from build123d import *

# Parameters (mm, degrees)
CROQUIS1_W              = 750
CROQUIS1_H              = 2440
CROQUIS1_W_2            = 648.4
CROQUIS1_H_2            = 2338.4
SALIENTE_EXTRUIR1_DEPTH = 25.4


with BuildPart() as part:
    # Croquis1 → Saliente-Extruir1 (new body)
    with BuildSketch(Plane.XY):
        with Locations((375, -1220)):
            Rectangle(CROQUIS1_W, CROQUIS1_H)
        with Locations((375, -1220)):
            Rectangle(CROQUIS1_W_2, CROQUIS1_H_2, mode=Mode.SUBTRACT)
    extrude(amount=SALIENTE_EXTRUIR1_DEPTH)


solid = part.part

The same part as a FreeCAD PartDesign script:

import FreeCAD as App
import Part
import Sketcher
from FreeCAD import Vector

doc = App.newDocument("Part")
body = doc.addObject("PartDesign::Body", "Body")

sketch1 = body.newObject("Sketcher::SketchObject", "Sketch")
sketch1.AttachmentSupport = (doc.getObject("XY_Plane"), [""])
sketch1.MapMode = "FlatFace"
sketch1.addGeometry([
    Part.LineSegment(Vector(0, 0, 0), Vector(0, -2440, 0)),
    Part.LineSegment(Vector(0, -2440, 0), Vector(750, -2440, 0)),
    Part.LineSegment(Vector(750, -2440, 0), Vector(750, 0, 0)),
    Part.LineSegment(Vector(750, 0, 0), Vector(0, 0, 0)),
    Part.LineSegment(Vector(699.2, -2389.2, 0), Vector(50.8, -2389.2, 0)),
    Part.LineSegment(Vector(50.8, -2389.2, 0), Vector(50.8, -50.8, 0)),
    Part.LineSegment(Vector(50.8, -50.8, 0), Vector(699.2, -50.8, 0)),
    Part.LineSegment(Vector(699.2, -50.8, 0), Vector(699.2, -2389.2, 0)),
], False)
sketch1.addConstraint([
    Sketcher.Constraint("Coincident", 0, 2, 1, 1),
    Sketcher.Constraint("Coincident", 1, 2, 2, 1),
    Sketcher.Constraint("Coincident", 2, 2, 3, 1),
    Sketcher.Constraint("Coincident", 3, 2, 0, 1),
    Sketcher.Constraint("Coincident", 4, 2, 5, 1),
    Sketcher.Constraint("Coincident", 5, 2, 6, 1),
    Sketcher.Constraint("Coincident", 6, 2, 7, 1),
    Sketcher.Constraint("Coincident", 7, 2, 4, 1),
    Sketcher.Constraint("Vertical", 0),
    Sketcher.Constraint("Horizontal", 1),
    Sketcher.Constraint("Vertical", 2),
    Sketcher.Constraint("Horizontal", 3),
    Sketcher.Constraint("Horizontal", 4),
    Sketcher.Constraint("Vertical", 5),
    Sketcher.Constraint("Horizontal", 6),
    Sketcher.Constraint("Vertical", 7),
    Sketcher.Constraint("Coincident", 3, 2, -1, 1),
    Sketcher.Constraint("DistanceX", 1, 1, 1, 2, 750.0),
    Sketcher.Constraint("DistanceY", 0, 2, 0, 1, 2440.0),
    Sketcher.Constraint("DistanceX", 4, 2, 4, 1, 648.4),
    Sketcher.Constraint("DistanceY", 5, 1, 5, 2, 2338.4),
    Sketcher.Constraint("DistanceX", -1, 1, 4, 2, 50.8),
    Sketcher.Constraint("DistanceY", 4, 2, -1, 1, 2389.2),
])
pad1 = body.newObject("PartDesign::Pad", "Pad")
pad1.Profile = sketch1
pad1.Length = 25.4

doc.recompute()
